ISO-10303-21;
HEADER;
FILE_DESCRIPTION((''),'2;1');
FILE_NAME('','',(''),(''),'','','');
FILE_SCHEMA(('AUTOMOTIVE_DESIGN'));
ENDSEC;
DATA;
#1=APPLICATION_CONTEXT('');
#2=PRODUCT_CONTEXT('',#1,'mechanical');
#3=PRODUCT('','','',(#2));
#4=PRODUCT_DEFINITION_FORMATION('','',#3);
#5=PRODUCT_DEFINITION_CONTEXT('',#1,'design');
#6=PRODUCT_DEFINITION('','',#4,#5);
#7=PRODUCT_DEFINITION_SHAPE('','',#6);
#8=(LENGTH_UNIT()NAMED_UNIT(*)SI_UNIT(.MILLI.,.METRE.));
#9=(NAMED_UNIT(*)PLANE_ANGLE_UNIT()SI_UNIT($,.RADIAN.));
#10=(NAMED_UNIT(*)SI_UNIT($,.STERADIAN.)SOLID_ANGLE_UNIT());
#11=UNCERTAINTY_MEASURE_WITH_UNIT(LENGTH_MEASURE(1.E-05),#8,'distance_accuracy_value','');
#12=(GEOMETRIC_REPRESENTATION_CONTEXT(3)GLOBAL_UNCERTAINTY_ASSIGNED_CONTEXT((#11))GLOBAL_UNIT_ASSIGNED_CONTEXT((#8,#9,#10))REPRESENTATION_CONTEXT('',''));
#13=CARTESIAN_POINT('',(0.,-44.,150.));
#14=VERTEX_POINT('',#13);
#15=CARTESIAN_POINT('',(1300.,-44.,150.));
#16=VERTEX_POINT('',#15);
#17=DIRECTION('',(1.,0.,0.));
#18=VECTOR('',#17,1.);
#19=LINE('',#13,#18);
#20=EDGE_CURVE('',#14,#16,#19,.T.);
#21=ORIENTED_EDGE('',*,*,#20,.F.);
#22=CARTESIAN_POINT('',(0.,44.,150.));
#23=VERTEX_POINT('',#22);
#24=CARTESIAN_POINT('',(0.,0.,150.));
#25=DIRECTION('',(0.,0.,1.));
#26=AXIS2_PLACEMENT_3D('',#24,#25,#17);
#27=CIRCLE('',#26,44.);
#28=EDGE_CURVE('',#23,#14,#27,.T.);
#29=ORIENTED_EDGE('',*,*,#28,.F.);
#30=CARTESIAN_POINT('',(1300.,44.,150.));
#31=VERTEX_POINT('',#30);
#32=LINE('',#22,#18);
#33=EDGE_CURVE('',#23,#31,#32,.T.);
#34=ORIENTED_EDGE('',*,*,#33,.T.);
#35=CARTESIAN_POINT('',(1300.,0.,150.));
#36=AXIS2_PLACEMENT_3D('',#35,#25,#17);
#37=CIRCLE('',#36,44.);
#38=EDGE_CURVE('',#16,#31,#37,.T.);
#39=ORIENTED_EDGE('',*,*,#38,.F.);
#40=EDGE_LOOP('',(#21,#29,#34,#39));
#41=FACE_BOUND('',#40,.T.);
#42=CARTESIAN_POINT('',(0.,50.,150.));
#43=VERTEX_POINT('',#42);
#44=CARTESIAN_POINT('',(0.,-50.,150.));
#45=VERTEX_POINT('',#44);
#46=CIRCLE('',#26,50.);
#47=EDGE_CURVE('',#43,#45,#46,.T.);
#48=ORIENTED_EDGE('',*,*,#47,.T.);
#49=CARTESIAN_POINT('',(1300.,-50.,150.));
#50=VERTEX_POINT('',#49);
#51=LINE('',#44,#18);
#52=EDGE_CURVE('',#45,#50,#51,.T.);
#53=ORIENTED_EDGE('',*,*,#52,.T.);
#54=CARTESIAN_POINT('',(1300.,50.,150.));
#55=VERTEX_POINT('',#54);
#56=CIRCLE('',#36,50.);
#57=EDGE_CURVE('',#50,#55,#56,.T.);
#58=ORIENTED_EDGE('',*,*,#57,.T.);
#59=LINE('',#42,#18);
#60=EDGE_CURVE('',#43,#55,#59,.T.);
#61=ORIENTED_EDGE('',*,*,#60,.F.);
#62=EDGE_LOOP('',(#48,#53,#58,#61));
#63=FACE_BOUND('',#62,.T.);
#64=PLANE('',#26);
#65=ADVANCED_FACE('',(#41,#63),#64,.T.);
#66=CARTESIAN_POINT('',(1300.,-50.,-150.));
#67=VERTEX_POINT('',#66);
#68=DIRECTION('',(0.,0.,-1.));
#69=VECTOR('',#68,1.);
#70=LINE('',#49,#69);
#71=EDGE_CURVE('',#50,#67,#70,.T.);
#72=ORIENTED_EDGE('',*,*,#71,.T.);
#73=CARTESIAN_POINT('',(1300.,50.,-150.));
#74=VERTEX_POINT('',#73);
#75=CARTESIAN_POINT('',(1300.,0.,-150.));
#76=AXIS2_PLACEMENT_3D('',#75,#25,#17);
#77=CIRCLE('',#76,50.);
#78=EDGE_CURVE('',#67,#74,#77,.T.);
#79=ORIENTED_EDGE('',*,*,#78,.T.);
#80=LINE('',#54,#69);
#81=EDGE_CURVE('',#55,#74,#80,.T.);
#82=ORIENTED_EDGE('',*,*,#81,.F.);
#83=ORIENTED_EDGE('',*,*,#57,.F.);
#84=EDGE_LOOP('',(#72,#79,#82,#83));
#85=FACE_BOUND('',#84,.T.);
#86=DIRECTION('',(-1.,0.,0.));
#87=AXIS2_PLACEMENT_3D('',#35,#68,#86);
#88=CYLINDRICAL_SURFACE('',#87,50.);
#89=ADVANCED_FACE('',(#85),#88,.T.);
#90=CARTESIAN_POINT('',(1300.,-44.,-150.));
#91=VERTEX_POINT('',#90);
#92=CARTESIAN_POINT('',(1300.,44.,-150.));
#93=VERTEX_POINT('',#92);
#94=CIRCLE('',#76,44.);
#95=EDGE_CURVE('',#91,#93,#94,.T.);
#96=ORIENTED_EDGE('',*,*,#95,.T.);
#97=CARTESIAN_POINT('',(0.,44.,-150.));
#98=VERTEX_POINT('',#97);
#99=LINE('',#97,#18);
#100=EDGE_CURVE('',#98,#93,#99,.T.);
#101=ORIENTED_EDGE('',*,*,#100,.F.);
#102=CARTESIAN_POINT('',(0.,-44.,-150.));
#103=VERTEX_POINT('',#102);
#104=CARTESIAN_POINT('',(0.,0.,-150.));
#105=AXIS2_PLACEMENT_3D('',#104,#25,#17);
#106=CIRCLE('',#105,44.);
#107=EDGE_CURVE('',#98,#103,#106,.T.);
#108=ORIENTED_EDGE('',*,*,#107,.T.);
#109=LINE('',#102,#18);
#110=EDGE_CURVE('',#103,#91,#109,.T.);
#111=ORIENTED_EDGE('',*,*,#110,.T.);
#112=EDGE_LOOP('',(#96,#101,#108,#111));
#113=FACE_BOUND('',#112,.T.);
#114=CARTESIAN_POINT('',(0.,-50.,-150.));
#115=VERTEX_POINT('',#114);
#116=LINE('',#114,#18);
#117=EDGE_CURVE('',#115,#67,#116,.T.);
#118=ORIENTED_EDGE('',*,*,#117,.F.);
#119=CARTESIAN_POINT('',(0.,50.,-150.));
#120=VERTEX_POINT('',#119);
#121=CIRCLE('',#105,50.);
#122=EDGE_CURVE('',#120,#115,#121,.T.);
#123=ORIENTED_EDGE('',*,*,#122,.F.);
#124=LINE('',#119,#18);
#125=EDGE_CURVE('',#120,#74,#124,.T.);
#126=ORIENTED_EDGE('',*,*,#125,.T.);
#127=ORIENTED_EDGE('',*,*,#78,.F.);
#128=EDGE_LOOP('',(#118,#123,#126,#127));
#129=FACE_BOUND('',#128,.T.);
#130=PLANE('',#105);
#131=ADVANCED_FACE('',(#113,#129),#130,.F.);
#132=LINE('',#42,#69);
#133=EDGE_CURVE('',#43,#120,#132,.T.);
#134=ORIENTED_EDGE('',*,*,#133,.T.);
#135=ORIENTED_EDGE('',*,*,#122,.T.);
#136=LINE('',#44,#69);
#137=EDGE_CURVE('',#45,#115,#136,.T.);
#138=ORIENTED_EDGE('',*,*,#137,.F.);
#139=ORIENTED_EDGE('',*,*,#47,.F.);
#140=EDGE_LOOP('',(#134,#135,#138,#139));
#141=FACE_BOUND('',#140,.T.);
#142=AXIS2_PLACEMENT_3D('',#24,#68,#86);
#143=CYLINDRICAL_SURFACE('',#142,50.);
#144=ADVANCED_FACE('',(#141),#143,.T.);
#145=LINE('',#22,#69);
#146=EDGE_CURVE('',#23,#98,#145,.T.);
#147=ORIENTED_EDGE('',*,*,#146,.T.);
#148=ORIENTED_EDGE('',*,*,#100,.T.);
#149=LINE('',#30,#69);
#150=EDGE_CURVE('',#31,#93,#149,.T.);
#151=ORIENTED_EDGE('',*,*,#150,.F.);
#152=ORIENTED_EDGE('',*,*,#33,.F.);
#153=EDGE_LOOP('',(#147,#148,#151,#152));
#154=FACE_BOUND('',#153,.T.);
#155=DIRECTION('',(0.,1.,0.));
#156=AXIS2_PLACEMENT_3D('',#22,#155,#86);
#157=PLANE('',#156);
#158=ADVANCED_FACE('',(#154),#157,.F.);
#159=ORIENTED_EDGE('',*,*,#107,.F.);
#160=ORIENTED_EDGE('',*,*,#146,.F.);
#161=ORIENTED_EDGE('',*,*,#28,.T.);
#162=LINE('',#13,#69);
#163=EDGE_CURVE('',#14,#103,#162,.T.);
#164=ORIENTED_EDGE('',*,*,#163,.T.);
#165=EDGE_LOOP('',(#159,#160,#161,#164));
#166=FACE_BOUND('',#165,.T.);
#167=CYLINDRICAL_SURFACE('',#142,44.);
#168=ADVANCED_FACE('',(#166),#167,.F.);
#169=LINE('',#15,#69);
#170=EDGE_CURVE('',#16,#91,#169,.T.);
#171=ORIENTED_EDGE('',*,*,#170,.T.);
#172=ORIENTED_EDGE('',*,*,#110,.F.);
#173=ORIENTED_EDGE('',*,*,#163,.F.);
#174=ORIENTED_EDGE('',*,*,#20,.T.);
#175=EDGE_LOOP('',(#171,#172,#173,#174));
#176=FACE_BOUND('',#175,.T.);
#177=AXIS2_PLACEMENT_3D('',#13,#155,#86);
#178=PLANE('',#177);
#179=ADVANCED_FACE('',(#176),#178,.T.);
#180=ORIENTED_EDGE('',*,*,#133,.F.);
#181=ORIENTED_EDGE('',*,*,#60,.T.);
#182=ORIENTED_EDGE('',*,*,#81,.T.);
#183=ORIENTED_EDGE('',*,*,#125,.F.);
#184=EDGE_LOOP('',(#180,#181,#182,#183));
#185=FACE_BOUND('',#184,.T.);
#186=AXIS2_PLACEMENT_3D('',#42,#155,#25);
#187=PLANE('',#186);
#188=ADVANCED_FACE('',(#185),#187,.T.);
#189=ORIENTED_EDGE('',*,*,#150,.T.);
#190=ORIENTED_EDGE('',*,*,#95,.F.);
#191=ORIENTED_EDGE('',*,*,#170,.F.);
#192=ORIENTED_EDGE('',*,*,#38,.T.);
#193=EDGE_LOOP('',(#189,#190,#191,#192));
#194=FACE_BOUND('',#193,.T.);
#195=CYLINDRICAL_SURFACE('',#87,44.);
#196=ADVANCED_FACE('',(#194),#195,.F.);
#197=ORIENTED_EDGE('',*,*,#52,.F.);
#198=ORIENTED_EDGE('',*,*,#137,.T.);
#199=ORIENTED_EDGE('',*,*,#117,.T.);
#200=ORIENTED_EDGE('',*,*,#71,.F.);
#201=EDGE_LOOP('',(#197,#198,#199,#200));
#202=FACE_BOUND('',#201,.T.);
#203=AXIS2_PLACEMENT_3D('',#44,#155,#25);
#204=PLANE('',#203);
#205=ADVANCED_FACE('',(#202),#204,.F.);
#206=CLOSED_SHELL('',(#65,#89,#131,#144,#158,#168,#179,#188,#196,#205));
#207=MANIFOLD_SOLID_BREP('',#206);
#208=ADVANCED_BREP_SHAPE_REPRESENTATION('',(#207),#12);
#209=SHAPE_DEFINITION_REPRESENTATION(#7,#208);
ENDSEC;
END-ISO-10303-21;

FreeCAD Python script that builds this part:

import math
import FreeCAD as App
import Part
import Sketcher
from FreeCAD import Vector

doc = App.newDocument("Part")
body = doc.addObject("PartDesign::Body", "Body")

# Sketch on XY plane
sketch1 = body.newObject("Sketcher::SketchObject", "Sketch")
sketch1.AttachmentSupport = (doc.getObject("XY_Plane"), [""])
sketch1.MapMode = "FlatFace"
sketch1.addGeometry([
    Part.LineSegment(Vector(0, -50, 0), Vector(1300, -50, 0)),  # 0
    Part.ArcOfCircle(Part.Circle(Vector(1300, 0, 0), Vector(0, 0, 1), 50), math.radians(-90), math.radians(90)),  # 1
    Part.LineSegment(Vector(1300, 50, 0), Vector(0, 50, 0)),  # 2
    Part.ArcOfCircle(Part.Circle(Vector(0, 0, 0), Vector(0, 0, 1), 50), math.radians(90), math.radians(270)),  # 3
    Part.ArcOfCircle(Part.Circle(Vector(0, 0, 0), Vector(0, 0, 1), 44), math.radians(90), math.radians(270)),  # 4
    Part.LineSegment(Vector(0, 44, 0), Vector(1300, 44, 0)),  # 5
    Part.ArcOfCircle(Part.Circle(Vector(1300, 0, 0), Vector(0, 0, 1), 44), math.radians(-90), math.radians(90)),  # 6
    Part.LineSegment(Vector(1300, -44, 0), Vector(0, -44, 0)),  # 7
], False)
sketch1.addConstraint([
    Sketcher.Constraint("Tangent", 0, 2, 1, 1),
    Sketcher.Constraint("Tangent", 1, 2, 2, 1),
    Sketcher.Constraint("Tangent", 2, 2, 3, 1),
    Sketcher.Constraint("Tangent", 3, 2, 0, 1),
    Sketcher.Constraint("Tangent", 4, 1, 5, 1),
    Sketcher.Constraint("Tangent", 5, 2, 6, 2),
    Sketcher.Constraint("Tangent", 6, 1, 7, 1),
    Sketcher.Constraint("Tangent", 7, 2, 4, 2),
    Sketcher.Constraint("Horizontal", 0),
    Sketcher.Constraint("Horizontal", 2),
    Sketcher.Constraint("Horizontal", 5),
    Sketcher.Constraint("Horizontal", 7),
    Sketcher.Constraint("Coincident", 3, 3, -1, 1),
    Sketcher.Constraint("Coincident", 4, 3, -1, 1),
    Sketcher.Constraint("Vertical", 6, 3, 0, 2),
    Sketcher.Constraint("Radius", 1, 50.0),
    Sketcher.Constraint("Radius", 4, 44.0),
    Sketcher.Constraint("DistanceX", 0, 1, 0, 2, 1300.0),
])
pad1 = body.newObject("PartDesign::Pad", "Pad")
pad1.Profile = sketch1
pad1.Length = 300
pad1.Midplane = True

doc.recompute()
